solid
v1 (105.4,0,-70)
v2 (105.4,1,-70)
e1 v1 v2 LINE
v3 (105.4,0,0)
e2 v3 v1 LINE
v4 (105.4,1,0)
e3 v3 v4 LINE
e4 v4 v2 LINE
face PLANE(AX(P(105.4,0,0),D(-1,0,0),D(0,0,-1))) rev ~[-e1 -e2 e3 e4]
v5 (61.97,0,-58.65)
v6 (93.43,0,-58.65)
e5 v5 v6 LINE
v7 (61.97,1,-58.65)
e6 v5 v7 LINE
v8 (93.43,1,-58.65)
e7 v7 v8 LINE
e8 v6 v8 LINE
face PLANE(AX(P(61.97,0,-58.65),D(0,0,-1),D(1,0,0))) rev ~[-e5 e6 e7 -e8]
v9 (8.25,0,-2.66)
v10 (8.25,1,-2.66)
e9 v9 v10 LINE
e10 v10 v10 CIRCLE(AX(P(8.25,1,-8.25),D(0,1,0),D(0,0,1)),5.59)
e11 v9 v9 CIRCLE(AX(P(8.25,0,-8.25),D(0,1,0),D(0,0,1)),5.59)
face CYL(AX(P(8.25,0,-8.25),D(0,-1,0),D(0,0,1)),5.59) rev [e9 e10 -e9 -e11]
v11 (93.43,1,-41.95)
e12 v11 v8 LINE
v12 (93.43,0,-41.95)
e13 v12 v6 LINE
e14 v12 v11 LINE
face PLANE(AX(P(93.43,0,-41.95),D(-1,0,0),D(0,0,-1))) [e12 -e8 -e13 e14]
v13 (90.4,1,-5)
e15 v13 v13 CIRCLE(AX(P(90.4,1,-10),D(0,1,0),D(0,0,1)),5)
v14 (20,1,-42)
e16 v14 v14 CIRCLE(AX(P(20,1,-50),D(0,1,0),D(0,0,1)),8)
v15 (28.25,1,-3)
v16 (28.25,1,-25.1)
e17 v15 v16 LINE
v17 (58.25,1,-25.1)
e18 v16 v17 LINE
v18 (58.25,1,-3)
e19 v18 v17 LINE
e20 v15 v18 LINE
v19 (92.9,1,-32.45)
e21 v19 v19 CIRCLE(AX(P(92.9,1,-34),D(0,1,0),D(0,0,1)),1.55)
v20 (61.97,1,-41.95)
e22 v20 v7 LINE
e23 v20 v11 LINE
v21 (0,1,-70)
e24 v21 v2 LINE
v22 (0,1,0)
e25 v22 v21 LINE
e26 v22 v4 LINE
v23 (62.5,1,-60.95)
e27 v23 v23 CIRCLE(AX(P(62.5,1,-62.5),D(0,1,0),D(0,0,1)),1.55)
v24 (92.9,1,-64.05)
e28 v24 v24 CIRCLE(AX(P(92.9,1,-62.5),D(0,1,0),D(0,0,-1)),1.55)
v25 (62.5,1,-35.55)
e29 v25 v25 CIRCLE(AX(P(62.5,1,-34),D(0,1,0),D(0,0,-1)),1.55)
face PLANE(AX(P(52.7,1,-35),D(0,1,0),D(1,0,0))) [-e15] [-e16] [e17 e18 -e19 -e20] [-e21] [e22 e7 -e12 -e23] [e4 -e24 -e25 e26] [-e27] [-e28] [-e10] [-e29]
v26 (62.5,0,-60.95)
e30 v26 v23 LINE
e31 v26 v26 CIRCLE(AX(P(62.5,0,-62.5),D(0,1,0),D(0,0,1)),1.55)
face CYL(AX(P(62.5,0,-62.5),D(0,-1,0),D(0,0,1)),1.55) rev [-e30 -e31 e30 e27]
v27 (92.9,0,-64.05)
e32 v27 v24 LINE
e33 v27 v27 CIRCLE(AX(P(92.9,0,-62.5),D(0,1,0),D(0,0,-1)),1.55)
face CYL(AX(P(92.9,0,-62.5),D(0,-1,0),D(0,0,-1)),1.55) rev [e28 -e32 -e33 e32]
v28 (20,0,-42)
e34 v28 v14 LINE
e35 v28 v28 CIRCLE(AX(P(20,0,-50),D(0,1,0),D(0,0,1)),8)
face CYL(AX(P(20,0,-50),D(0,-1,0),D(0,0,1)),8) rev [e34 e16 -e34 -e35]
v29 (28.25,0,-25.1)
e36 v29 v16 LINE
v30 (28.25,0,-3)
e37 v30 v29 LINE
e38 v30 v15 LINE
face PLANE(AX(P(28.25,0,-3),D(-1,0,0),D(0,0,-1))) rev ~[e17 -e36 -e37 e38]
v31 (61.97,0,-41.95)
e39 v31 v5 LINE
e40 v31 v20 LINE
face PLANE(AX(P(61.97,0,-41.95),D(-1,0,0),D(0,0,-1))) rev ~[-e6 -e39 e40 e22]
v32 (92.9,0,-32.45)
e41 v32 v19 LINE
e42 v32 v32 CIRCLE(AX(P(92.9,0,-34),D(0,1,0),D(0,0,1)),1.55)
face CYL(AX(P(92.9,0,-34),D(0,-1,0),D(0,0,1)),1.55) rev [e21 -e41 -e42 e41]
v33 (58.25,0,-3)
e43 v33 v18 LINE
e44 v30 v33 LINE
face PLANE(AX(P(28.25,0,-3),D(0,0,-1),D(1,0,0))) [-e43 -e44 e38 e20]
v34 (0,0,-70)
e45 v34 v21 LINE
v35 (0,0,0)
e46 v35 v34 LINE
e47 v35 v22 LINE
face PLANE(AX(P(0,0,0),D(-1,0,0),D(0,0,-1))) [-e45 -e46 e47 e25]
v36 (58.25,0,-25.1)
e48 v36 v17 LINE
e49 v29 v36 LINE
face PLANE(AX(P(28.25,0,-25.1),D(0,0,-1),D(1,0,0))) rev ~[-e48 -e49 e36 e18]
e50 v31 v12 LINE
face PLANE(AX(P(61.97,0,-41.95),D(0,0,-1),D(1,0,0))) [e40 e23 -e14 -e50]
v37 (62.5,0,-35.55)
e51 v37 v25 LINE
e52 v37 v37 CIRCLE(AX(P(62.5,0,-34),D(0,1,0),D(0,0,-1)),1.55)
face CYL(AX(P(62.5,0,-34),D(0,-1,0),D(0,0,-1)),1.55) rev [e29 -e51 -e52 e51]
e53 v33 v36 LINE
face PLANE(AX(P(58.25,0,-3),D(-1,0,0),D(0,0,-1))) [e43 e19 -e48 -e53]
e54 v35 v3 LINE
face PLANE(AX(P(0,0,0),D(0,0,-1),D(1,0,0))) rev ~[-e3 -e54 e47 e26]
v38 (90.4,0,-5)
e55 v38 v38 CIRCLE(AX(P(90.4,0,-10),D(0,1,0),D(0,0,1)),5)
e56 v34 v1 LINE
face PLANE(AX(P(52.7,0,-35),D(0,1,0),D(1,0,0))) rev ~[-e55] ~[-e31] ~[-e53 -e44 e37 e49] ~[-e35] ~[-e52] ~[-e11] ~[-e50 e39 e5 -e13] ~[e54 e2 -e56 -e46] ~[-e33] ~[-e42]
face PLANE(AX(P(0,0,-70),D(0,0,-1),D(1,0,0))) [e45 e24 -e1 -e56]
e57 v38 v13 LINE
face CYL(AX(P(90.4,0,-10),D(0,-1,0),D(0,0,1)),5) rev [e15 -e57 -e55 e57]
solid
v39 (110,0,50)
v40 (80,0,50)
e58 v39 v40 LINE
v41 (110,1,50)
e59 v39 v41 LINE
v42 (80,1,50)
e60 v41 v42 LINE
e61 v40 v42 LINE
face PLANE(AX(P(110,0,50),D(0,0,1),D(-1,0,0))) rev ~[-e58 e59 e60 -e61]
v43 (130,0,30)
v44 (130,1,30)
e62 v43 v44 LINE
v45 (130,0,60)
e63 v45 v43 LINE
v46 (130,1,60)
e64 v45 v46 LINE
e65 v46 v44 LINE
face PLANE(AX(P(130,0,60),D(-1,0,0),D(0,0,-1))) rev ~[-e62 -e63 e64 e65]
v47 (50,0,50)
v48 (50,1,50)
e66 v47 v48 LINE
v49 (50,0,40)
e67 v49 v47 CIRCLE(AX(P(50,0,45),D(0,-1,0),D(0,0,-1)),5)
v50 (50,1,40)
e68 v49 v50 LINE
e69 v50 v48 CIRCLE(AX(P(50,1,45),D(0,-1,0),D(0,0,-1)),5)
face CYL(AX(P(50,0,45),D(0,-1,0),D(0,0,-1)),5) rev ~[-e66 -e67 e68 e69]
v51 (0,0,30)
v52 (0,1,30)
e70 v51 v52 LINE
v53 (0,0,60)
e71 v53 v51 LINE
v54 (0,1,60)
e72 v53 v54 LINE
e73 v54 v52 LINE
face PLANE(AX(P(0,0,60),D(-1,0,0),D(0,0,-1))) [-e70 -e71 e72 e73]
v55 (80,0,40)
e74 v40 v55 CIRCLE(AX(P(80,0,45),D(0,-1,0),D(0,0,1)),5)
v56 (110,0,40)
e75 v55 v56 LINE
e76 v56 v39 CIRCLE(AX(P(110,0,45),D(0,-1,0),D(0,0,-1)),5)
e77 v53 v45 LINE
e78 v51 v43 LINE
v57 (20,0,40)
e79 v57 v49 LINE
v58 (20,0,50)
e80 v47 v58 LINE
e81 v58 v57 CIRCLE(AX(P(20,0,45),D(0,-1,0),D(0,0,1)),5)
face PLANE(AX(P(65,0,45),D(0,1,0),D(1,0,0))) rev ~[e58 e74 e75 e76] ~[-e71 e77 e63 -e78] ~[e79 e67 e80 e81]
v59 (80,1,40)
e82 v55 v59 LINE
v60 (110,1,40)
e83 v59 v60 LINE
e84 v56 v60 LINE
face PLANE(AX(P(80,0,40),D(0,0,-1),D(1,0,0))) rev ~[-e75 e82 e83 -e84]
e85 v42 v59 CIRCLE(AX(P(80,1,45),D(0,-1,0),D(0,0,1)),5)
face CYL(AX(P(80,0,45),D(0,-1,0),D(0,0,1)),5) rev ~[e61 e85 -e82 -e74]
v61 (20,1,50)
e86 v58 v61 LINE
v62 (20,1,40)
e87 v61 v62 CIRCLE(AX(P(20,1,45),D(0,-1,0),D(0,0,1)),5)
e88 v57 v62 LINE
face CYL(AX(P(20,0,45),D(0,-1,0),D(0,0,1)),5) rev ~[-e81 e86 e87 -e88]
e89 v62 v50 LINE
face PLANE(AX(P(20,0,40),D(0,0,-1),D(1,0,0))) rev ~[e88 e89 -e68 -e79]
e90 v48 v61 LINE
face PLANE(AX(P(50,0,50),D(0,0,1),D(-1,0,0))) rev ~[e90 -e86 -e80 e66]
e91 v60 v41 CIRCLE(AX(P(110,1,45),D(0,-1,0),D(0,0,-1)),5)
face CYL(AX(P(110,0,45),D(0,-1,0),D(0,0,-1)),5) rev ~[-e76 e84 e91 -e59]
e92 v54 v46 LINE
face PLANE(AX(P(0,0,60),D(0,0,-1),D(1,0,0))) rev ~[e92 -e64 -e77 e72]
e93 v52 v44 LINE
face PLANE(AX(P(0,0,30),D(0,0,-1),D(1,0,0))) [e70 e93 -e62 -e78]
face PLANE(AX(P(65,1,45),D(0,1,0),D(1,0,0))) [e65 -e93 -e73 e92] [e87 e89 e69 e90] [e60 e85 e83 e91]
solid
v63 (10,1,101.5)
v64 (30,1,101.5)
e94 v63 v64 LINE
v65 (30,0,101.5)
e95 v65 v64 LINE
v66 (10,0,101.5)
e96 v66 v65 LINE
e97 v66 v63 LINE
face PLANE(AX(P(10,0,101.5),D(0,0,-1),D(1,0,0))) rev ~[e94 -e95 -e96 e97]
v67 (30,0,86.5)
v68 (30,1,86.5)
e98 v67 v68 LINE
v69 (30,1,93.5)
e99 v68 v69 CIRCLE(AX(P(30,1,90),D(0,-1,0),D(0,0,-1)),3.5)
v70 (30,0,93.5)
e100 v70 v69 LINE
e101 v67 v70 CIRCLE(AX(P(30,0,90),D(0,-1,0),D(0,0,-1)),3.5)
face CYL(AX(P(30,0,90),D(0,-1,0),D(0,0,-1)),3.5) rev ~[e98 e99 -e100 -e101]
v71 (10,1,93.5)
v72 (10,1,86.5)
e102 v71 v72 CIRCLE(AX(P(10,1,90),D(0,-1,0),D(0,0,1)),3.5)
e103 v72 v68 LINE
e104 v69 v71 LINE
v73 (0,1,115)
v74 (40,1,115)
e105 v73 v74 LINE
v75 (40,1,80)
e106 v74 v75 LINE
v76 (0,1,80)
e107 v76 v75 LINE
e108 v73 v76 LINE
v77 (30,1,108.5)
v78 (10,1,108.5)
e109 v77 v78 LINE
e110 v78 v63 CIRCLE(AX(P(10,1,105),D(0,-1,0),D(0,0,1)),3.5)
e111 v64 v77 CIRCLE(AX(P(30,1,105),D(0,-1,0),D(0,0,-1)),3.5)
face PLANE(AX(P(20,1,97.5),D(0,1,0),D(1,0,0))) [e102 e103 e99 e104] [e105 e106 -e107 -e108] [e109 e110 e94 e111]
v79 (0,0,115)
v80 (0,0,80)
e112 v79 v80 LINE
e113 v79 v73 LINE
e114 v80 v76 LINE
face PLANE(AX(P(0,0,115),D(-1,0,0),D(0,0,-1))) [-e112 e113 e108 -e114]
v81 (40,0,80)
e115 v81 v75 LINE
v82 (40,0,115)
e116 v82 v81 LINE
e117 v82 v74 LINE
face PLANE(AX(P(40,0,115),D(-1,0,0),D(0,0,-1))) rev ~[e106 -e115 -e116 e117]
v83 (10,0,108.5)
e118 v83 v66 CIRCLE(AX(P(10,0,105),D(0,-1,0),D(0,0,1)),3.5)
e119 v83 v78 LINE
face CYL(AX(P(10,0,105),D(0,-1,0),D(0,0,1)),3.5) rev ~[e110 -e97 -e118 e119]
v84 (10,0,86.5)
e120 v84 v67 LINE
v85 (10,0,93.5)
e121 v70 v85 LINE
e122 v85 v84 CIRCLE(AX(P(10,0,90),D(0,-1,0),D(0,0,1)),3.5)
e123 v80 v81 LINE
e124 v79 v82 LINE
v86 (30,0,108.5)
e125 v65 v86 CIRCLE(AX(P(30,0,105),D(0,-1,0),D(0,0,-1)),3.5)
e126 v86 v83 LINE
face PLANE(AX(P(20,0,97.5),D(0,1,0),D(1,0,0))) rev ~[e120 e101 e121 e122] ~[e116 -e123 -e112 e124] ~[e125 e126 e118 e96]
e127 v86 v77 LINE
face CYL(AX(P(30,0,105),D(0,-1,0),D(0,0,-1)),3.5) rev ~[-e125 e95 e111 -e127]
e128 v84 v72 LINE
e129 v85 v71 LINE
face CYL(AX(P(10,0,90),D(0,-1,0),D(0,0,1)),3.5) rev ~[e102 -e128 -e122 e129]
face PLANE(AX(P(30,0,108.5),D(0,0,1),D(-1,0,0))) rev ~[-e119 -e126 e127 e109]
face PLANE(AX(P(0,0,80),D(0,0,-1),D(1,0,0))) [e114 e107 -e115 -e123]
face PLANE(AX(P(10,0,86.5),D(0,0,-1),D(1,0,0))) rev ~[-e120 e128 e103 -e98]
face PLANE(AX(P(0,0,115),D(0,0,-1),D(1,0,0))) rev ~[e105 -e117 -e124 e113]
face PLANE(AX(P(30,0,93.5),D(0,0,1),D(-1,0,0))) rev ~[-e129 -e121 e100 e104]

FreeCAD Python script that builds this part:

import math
import FreeCAD as App
import Part
import Sketcher

V = App.Vector


def add_polygon(sketch, points):
    """Adds a closed chain of lines whose ends are joined by coincident constraints."""
    first, n = sketch.GeometryCount, len(points)
    for a, b in zip(points, points[1:] + points[:1]):
        sketch.addGeometry(Part.LineSegment(App.Vector(*a, 0), App.Vector(*b, 0)), False)
    for i in range(n):
        sketch.addConstraint(Sketcher.Constraint("Coincident", first + i, 2, first + (i + 1) % n, 1))

doc = App.newDocument("Part")
params = doc.addObject("Spreadsheet::Sheet", "Params")
for row, (alias, value) in enumerate([
    ("sketch1_diameter", "10 mm"),
    ("sketch1_diameter2", "16 mm"),
    ("sketch1_diameter3", "3.1 mm"),
    ("sketch1_diameter4", "11.18 mm"),
    ("sketch1_width", "30 mm"),
    ("pad1_length", "1 mm"),
    ("sketch2_radius", "5 mm"),
    ("sketch2_width", "130 mm"),
    ("sketch2_width2", "30 mm"),
    ("pad2_length", "1 mm"),
    ("sketch3_radius", "3.5 mm"),
    ("sketch3_width", "40 mm"),
    ("sketch3_width2", "20 mm"),
    ("sketch3_height", "35 mm"),
    ("pad3_length", "1 mm"),
], start=1):
    params.set(f"A{row}", alias)
    params.set(f"B{row}", "=" + value)
    params.setAlias(f"B{row}", alias)

body = doc.addObject("PartDesign::Body", "Body")

# Sketch on XZ plane
sketch1 = body.newObject("Sketcher::SketchObject", "Sketch")
sketch1.AttachmentSupport = (doc.getObject("XZ_Plane"), [""])
sketch1.MapMode = "FlatFace"
add_polygon(sketch1, [(0, -70), (0, 0), (105.4, 0), (105.4, -70)])  # lines 0-3
sketch1.addGeometry(Part.Circle(V(8.2, -8.2, 0), V(0, 0, 1), 5.6), False)  # 4
add_polygon(sketch1, [(58.2, -3), (28.2, -3), (28.2, -25.1), (58.2, -25.1)])  # lines 5-8
sketch1.addGeometry(Part.Circle(V(90.4, -10, 0), V(0, 0, 1), 5), False)  # 9
sketch1.addGeometry(Part.Circle(V(20, -50, 0), V(0, 0, 1), 8), False)  # 10
sketch1.addGeometry(Part.Circle(V(62.5, -34, 0), V(0, 0, 1), 1.6), False)  # 11
sketch1.addGeometry(Part.Circle(V(92.9, -34, 0), V(0, 0, 1), 1.6), False)  # 12
sketch1.addGeometry(Part.Circle(V(62.5, -62.5, 0), V(0, 0, 1), 1.6), False)  # 13
add_polygon(sketch1, [(93.4, -42), (62, -42), (62, -58.6), (93.4, -58.6)])  # lines 14-17
sketch1.addGeometry(Part.Circle(V(92.9, -62.5, 0), V(0, 0, 1), 1.6), False)  # 18
sketch1.addConstraint([
    Sketcher.Constraint("Vertical", 0),
    Sketcher.Constraint("Horizontal", 1),
    Sketcher.Constraint("Vertical", 2),
    Sketcher.Constraint("Horizontal", 3),
    Sketcher.Constraint("Horizontal", 5),
    Sketcher.Constraint("Vertical", 6),
    Sketcher.Constraint("Horizontal", 7),
    Sketcher.Constraint("Vertical", 8),
    Sketcher.Constraint("Horizontal", 14),
    Sketcher.Constraint("Vertical", 15),
    Sketcher.Constraint("Horizontal", 16),
    Sketcher.Constraint("Vertical", 17),
    Sketcher.Constraint("Coincident", 0, 2, -1, 1),
    Sketcher.Constraint("Equal", 11, 12),
    Sketcher.Constraint("Equal", 12, 13),
    Sketcher.Constraint("Equal", 13, 18),
    Sketcher.Constraint("Horizontal", 11, 3, 12, 3),
    Sketcher.Constraint("Horizontal", 13, 3, 18, 3),
    Sketcher.Constraint("Vertical", 11, 3, 13, 3),
    Sketcher.Constraint("Vertical", 12, 3, 18, 3),
    Sketcher.Constraint("Diameter", 9, 10.0),
    Sketcher.Constraint("Diameter", 10, 16.0),
    Sketcher.Constraint("Diameter", 11, 3.1),
    Sketcher.Constraint("Diameter", 4, 11.18),
    Sketcher.Constraint("DistanceX", 5, 2, 5, 1, 30.0),
    Sketcher.Constraint("DistanceY", 0, 1, 0, 2, 70.0),
    Sketcher.Constraint("DistanceX", 1, 1, 1, 2, 105.4),
    Sketcher.Constraint("DistanceY", 6, 2, 6, 1, 22.1),
    Sketcher.Constraint("DistanceY", 15, 2, 15, 1, 16.7),
    Sketcher.Constraint("DistanceY", 9, 3, -1, 1, 10.0),
    Sketcher.Constraint("DistanceX", -1, 1, 10, 3, 20.0),
    Sketcher.Constraint("DistanceY", 10, 3, -1, 1, 50.0),
    Sketcher.Constraint("DistanceY", 11, 3, -1, 1, 34.0),
    Sketcher.Constraint("DistanceY", 5, 2, -1, 1, 3.0),
    Sketcher.Constraint("DistanceX", 9, 3, 1, 2, 15.0),
    Sketcher.Constraint("DistanceX", 4, 3, 5, 2, 20.0),
    Sketcher.Constraint("DistanceX", 14, 2, 14, 1, 31.46),
    Sketcher.Constraint("DistanceX", -1, 1, 11, 3, 62.5),
    Sketcher.Constraint("DistanceX", -1, 1, 12, 3, 92.9),
    Sketcher.Constraint("DistanceY", 13, 3, -1, 1, 62.5),
    Sketcher.Constraint("DistanceX", -1, 1, 4, 3, 8.25),
    Sketcher.Constraint("DistanceY", 4, 3, -1, 1, 8.25),
    Sketcher.Constraint("DistanceX", -1, 1, 14, 2, 61.97),
    Sketcher.Constraint("DistanceY", 14, 2, -1, 1, 41.95),
])
sketch1.setExpression("Constraints[32]", "Params.sketch1_diameter")
sketch1.setExpression("Constraints[33]", "Params.sketch1_diameter2")
sketch1.setExpression("Constraints[34]", "Params.sketch1_diameter3")
sketch1.setExpression("Constraints[35]", "Params.sketch1_diameter4")
sketch1.setExpression("Constraints[36]", "Params.sketch1_width")
pad1 = body.newObject("PartDesign::Pad", "Pad")
pad1.Profile = sketch1
pad1.setExpression("Length", "Params.pad1_length")
pad1.Reversed = True
body2 = doc.addObject("PartDesign::Body", "Body001")

# Sketch on XZ plane
sketch2 = body2.newObject("Sketcher::SketchObject", "Sketch001")
sketch2.AttachmentSupport = (doc.getObject("XZ_Plane001"), [""])
sketch2.MapMode = "FlatFace"
add_polygon(sketch2, [(0, 30), (0, 60), (130, 60), (130, 30)])  # lines 0-3
sketch2.addGeometry(Part.ArcOfCircle(Part.Circle(V(20, 45, 0), V(0, 0, 1), 5), math.radians(90), math.radians(270)), False)  # 4
sketch2.addGeometry(Part.LineSegment(V(20, 40, 0), V(50, 40, 0)), False)  # 5
sketch2.addGeometry(Part.ArcOfCircle(Part.Circle(V(50, 45, 0), V(0, 0, 1), 5), math.radians(-90), math.radians(90)), False)  # 6
sketch2.addGeometry(Part.LineSegment(V(50, 50, 0), V(20, 50, 0)), False)  # 7
sketch2.addGeometry(Part.ArcOfCircle(Part.Circle(V(80, 45, 0), V(0, 0, 1), 5), math.radians(90), math.radians(270)), False)  # 8
sketch2.addGeometry(Part.LineSegment(V(80, 40, 0), V(110, 40, 0)), False)  # 9
sketch2.addGeometry(Part.ArcOfCircle(Part.Circle(V(110, 45, 0), V(0, 0, 1), 5), math.radians(-90), math.radians(90)), False)  # 10
sketch2.addGeometry(Part.LineSegment(V(110, 50, 0), V(80, 50, 0)), False)  # 11
sketch2.addConstraint([
    Sketcher.Constraint("Tangent", 4, 2, 5, 1),
    Sketcher.Constraint("Tangent", 5, 2, 6, 1),
    Sketcher.Constraint("Tangent", 6, 2, 7, 1),
    Sketcher.Constraint("Tangent", 7, 2, 4, 1),
    Sketcher.Constraint("Tangent", 8, 2, 9, 1),
    Sketcher.Constraint("Tangent", 9, 2, 10, 1),
    Sketcher.Constraint("Tangent", 10, 2, 11, 1),
    Sketcher.Constraint("Tangent", 11, 2, 8, 1),
    Sketcher.Constraint("Vertical", 0),
    Sketcher.Constraint("Horizontal", 1),
    Sketcher.Constraint("Vertical", 2),
    Sketcher.Constraint("Horizontal", 3),
    Sketcher.Constraint("Horizontal", 5),
    Sketcher.Constraint("Horizontal", 7),
    Sketcher.Constraint("Horizontal", 9),
    Sketcher.Constraint("Horizontal", 11),
    Sketcher.Constraint("Equal", 6, 8),
    Sketcher.Constraint("PointOnObject", 0, 2, -2),
    Sketcher.Constraint("Horizontal", 6, 3, 8, 3),
    Sketcher.Constraint("Equal", 7, 9),
    Sketcher.Constraint("Equal", 11, 0),
    Sketcher.Constraint("Radius", 4, 5.0),
    Sketcher.Constraint("DistanceX", 1, 1, 1, 2, 130.0),
    Sketcher.Constraint("DistanceX", 5, 1, 5, 2, 30.0),
    Sketcher.Constraint("DistanceX", -1, 1, 4, 3, 20.0),
    Sketcher.Constraint("DistanceY", -1, 1, 4, 3, 45.0),
    Sketcher.Constraint("DistanceX", -1, 1, 8, 3, 80.0),
    Sketcher.Constraint("DistanceY", -1, 1, 0, 2, 60.0),
])
sketch2.setExpression("Constraints[25]", "Params.sketch2_radius")
sketch2.setExpression("Constraints[26]", "Params.sketch2_width")
sketch2.setExpression("Constraints[27]", "Params.sketch2_width2")
pad2 = body2.newObject("PartDesign::Pad", "Pad001")
pad2.Profile = sketch2
pad2.setExpression("Length", "Params.pad2_length")
pad2.Reversed = True
body3 = doc.addObject("PartDesign::Body", "Body002")

# Sketch on XZ plane
sketch3 = body3.newObject("Sketcher::SketchObject", "Sketch002")
sketch3.AttachmentSupport = (doc.getObject("XZ_Plane002"), [""])
sketch3.MapMode = "FlatFace"
add_polygon(sketch3, [(0, 80), (0, 115), (40, 115), (40, 80)])  # lines 0-3
sketch3.addGeometry(Part.ArcOfCircle(Part.Circle(V(10, 105, 0), V(0, 0, 1), 3.5), math.radians(90), math.radians(270)), False)  # 4
sketch3.addGeometry(Part.LineSegment(V(10, 101.5, 0), V(30, 101.5, 0)), False)  # 5
sketch3.addGeometry(Part.ArcOfCircle(Part.Circle(V(30, 105, 0), V(0, 0, 1), 3.5), math.radians(-90), math.radians(90)), False)  # 6
sketch3.addGeometry(Part.LineSegment(V(30, 108.5, 0), V(10, 108.5, 0)), False)  # 7
sketch3.addGeometry(Part.ArcOfCircle(Part.Circle(V(10, 90, 0), V(0, 0, 1), 3.5), math.radians(90), math.radians(270)), False)  # 8
sketch3.addGeometry(Part.LineSegment(V(10, 86.5, 0), V(30, 86.5, 0)), False)  # 9
sketch3.addGeometry(Part.ArcOfCircle(Part.Circle(V(30, 90, 0), V(0, 0, 1), 3.5), math.radians(-90), math.radians(90)), False)  # 10
sketch3.addGeometry(Part.LineSegment(V(30, 93.5, 0), V(10, 93.5, 0)), False)  # 11
sketch3.addConstraint([
    Sketcher.Constraint("Tangent", 4, 2, 5, 1),
    Sketcher.Constraint("Tangent", 5, 2, 6, 1),
    Sketcher.Constraint("Tangent", 6, 2, 7, 1),
    Sketcher.Constraint("Tangent", 7, 2, 4, 1),
    Sketcher.Constraint("Tangent", 8, 2, 9, 1),
    Sketcher.Constraint("Tangent", 9, 2, 10, 1),
    Sketcher.Constraint("Tangent", 10, 2, 11, 1),
    Sketcher.Constraint("Tangent", 11, 2, 8, 1),
    Sketcher.Constraint("Vertical", 0),
    Sketcher.Constraint("Horizontal", 1),
    Sketcher.Constraint("Vertical", 2),
    Sketcher.Constraint("Horizontal", 3),
    Sketcher.Constraint("Horizontal", 5),
    Sketcher.Constraint("Horizontal", 7),
    Sketcher.Constraint("Horizontal", 9),
    Sketcher.Constraint("Horizontal", 11),
    Sketcher.Constraint("Equal", 6, 8),
    Sketcher.Constraint("PointOnObject", 0, 2, -2),
    Sketcher.Constraint("Vertical", 4, 3, 8, 3),
    Sketcher.Constraint("Vertical", 6, 3, 10, 3),
    Sketcher.Constraint("Radius", 4, 3.5),
    Sketcher.Constraint("DistanceX", 1, 1, 1, 2, 40.0),
    Sketcher.Constraint("DistanceX", 5, 1, 5, 2, 20.0),
    Sketcher.Constraint("DistanceY", 0, 1, 0, 2, 35.0),
    Sketcher.Constraint("DistanceX", -1, 1, 4, 3, 10.0),
    Sketcher.Constraint("DistanceY", -1, 1, 4, 3, 105.0),
    Sketcher.Constraint("DistanceY", -1, 1, 8, 3, 90.0),
    Sketcher.Constraint("DistanceY", -1, 1, 0, 2, 115.0),
])
sketch3.setExpression("Constraints[24]", "Params.sketch3_radius")
sketch3.setExpression("Constraints[25]", "Params.sketch3_width")
sketch3.setExpression("Constraints[26]", "Params.sketch3_width2")
sketch3.setExpression("Constraints[27]", "Params.sketch3_height")
pad3 = body3.newObject("PartDesign::Pad", "Pad002")
pad3.Profile = sketch3
pad3.setExpression("Length", "Params.pad3_length")
pad3.Reversed = True

doc.recompute()
